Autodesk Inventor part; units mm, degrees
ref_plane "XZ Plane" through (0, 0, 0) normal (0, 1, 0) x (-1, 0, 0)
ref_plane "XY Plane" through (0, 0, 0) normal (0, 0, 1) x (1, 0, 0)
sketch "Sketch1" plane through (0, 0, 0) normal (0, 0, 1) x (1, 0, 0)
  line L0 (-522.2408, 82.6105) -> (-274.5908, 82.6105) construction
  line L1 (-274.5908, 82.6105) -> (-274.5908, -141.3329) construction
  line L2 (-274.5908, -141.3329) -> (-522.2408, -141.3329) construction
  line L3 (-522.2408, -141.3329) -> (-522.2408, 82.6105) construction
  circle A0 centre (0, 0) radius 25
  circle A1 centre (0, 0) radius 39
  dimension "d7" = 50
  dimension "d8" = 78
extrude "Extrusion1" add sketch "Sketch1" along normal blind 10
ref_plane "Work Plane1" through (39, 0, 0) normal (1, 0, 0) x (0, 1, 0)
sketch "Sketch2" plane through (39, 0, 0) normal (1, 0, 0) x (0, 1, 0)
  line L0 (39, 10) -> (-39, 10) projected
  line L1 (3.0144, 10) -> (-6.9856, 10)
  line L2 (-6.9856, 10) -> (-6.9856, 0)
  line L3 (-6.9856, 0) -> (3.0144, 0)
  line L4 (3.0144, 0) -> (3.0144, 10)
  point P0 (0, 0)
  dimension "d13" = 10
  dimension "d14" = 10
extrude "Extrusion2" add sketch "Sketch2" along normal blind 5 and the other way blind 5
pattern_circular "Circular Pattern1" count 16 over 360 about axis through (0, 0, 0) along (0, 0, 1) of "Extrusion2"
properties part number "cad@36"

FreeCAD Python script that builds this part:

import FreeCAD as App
import Part
import Sketcher
Q = App.Units.Quantity

doc = App.newDocument("Part")
body = doc.addObject("PartDesign::Body", "Body")

# Sketch on XY plane
sketch1 = body.newObject("Sketcher::SketchObject", "Sketch")
sketch1.AttachmentSupport = (doc.getObject("XY_Plane"), [""])
sketch1.MapMode = "FlatFace"
sketch1.addGeometry(Part.Circle(App.Vector(0, 0, 0), App.Vector(0, 0, 1), 39), False)
sketch1.addGeometry(Part.Circle(App.Vector(0, 0, 0), App.Vector(0, 0, 1), 25), False)
sketch1.addConstraint(Sketcher.Constraint("Coincident", 0, 3, -1, 1))
sketch1.addConstraint(Sketcher.Constraint("Coincident", 1, 3, -1, 1))
sketch1.addConstraint(Sketcher.Constraint("Diameter", 0, Q("78 mm")))
sketch1.addConstraint(Sketcher.Constraint("Diameter", 1, Q("50 mm")))
pad1 = body.newObject("PartDesign::Pad", "Pad")
pad1.Profile = sketch1
pad1.Length = 10

# Sketch on YZ plane
sketch2 = body.newObject("Sketcher::SketchObject", "Sketch001")
sketch2.AttachmentSupport = (doc.getObject("YZ_Plane"), [""])
sketch2.MapMode = "FlatFace"
sketch2.AttachmentOffset = App.Placement(App.Vector(0, 0, 39), App.Rotation())
sketch2.addGeometry(Part.LineSegment(App.Vector(3, 0, 0), App.Vector(3, 10, 0)), False)
sketch2.addGeometry(Part.LineSegment(App.Vector(3, 10, 0), App.Vector(-7, 10, 0)), False)
sketch2.addGeometry(Part.LineSegment(App.Vector(-7, 10, 0), App.Vector(-7, 0, 0)), False)
sketch2.addGeometry(Part.LineSegment(App.Vector(-7, 0, 0), App.Vector(3, 0, 0)), False)
sketch2.addConstraint(Sketcher.Constraint("Coincident", 0, 2, 1, 1))
sketch2.addConstraint(Sketcher.Constraint("Coincident", 1, 2, 2, 1))
sketch2.addConstraint(Sketcher.Constraint("Coincident", 2, 2, 3, 1))
sketch2.addConstraint(Sketcher.Constraint("Coincident", 3, 2, 0, 1))
sketch2.addConstraint(Sketcher.Constraint("Vertical", 0))
sketch2.addConstraint(Sketcher.Constraint("Horizontal", 1))
sketch2.addConstraint(Sketcher.Constraint("Vertical", 2))
sketch2.addConstraint(Sketcher.Constraint("Horizontal", 3))
sketch2.addConstraint(Sketcher.Constraint("PointOnObject", 2, 2, -1))
sketch2.addConstraint(Sketcher.Constraint("Equal", 3, 0))
sketch2.addConstraint(Sketcher.Constraint("DistanceX", 1, 2, 1, 1, Q("10 mm")))
sketch2.addConstraint(Sketcher.Constraint("DistanceX", -1, 1, 0, 2, Q("3.0144 mm")))
pad2 = body.newObject("PartDesign::Pad", "Pad001")
pad2.Profile = sketch2
pad2.Type = "TwoLengths"
pad2.Length = 5
pad2.Length2 = 5
doc.recompute()

polarpattern = body.newObject("PartDesign::PolarPattern", "PolarPattern")
polarpattern.Originals = [pad2]
polarpattern.Axis = (doc.getObject("Z_Axis"), [""])
polarpattern.Angle = 360
polarpattern.Occurrences = 16
body.Tip = polarpattern

doc.recompute()
